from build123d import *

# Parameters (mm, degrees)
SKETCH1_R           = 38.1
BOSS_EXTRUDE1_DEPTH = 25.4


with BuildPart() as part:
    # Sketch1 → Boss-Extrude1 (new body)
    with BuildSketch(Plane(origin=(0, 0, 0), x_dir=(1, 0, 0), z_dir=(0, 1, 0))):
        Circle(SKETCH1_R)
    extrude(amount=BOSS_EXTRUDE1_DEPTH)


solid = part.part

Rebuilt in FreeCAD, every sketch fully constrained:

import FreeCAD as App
import Part
import Sketcher
Q = App.Units.Quantity

doc = App.newDocument("Part")
params = doc.addObject("Spreadsheet::Sheet", "Params")
for row, (alias, value) in enumerate([
    ("sketch1_diameter", "3 in"),
    ("pad1_length", "1 in"),
], start=1):
    params.set(f"A{row}", alias)
    params.set(f"B{row}", "=" + value)
    params.setAlias(f"B{row}", alias)

body = doc.addObject("PartDesign::Body", "Body")

# Sketch on XZ plane
sketch1 = body.newObject("Sketcher::SketchObject", "Sketch")
sketch1.AttachmentSupport = (doc.getObject("XZ_Plane"), [""])
sketch1.MapMode = "FlatFace"
sketch1.addGeometry(Part.Circle(App.Vector(0, 0, 0), App.Vector(0, 0, 1), 38), False)
sketch1.addConstraint([
    Sketcher.Constraint("Coincident", 0, 3, -1, 1),
    Sketcher.Constraint("Diameter", 0, Q("3 in")),
])
sketch1.setExpression("Constraints[1]", "Params.sketch1_diameter")
pad1 = body.newObject("PartDesign::Pad", "Pad")
pad1.Profile = sketch1
pad1.setExpression("Length", "Params.pad1_length")
pad1.Reversed = True

doc.recompute()
